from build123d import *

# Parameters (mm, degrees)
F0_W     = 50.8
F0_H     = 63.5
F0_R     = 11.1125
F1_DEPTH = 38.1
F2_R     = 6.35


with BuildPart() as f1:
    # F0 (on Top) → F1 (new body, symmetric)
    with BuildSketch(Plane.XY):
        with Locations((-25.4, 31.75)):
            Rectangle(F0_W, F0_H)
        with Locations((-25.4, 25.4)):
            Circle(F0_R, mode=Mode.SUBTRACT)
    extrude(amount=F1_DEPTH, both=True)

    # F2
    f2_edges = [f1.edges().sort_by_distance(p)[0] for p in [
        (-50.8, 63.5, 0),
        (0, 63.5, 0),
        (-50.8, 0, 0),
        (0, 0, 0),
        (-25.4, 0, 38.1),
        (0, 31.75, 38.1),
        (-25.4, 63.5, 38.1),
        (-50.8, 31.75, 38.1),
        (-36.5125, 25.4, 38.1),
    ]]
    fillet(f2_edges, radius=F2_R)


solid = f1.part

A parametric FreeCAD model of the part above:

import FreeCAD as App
import Part
import Sketcher

V = App.Vector
Q = App.Units.Quantity


def edges_at(feature, points):
    """Names of the edges that pass closest to the given points."""
    edges = feature.Shape.Edges
    near = lambda p: min(range(len(edges)), key=lambda i: edges[i].distToShape(Part.Vertex(*p))[0])
    return sorted({f"Edge{near(p) + 1}" for p in points})

doc = App.newDocument("Part")
body = doc.addObject("PartDesign::Body", "Body")

sketch1 = body.newObject("Sketcher::SketchObject", "Sketch")
sketch1.AttachmentSupport = (doc.getObject("XY_Plane"), [""])
sketch1.MapMode = "FlatFace"
sketch1.addGeometry(Part.LineSegment(V(-51, 64, 0), V(-51, 0, 0)), False)
sketch1.addGeometry(Part.LineSegment(V(-51, 0, 0), V(0, 0, 0)), False)
sketch1.addGeometry(Part.LineSegment(V(0, 0, 0), V(0, 64, 0)), False)
sketch1.addGeometry(Part.LineSegment(V(0, 64, 0), V(-51, 64, 0)), False)
sketch1.addGeometry(Part.Circle(V(-25, 25, 0), V(0, 0, 1), 11), False)
sketch1.addConstraint(Sketcher.Constraint("Coincident", 0, 2, 1, 1))
sketch1.addConstraint(Sketcher.Constraint("Coincident", 1, 2, 2, 1))
sketch1.addConstraint(Sketcher.Constraint("Coincident", 2, 2, 3, 1))
sketch1.addConstraint(Sketcher.Constraint("Coincident", 3, 2, 0, 1))
sketch1.addConstraint(Sketcher.Constraint("Vertical", 0))
sketch1.addConstraint(Sketcher.Constraint("Horizontal", 1))
sketch1.addConstraint(Sketcher.Constraint("Vertical", 2))
sketch1.addConstraint(Sketcher.Constraint("Horizontal", 3))
sketch1.addConstraint(Sketcher.Constraint("Coincident", 1, 2, -1, 1))
sketch1.addConstraint(Sketcher.Constraint("DistanceX", 1, 1, 1, 2, Q("2 in")))
sketch1.addConstraint(Sketcher.Constraint("Diameter", 4, Q("0.875 in")))
sketch1.addConstraint(Sketcher.Constraint("DistanceY", 0, 2, 0, 1, Q("2.5 in")))
sketch1.addConstraint(Sketcher.Constraint("DistanceX", 4, 3, -1, 1, Q("1 in")))
sketch1.addConstraint(Sketcher.Constraint("DistanceY", -1, 1, 4, 3, Q("1 in")))
pad1 = body.newObject("PartDesign::Pad", "Pad")
pad1.Profile = sketch1
pad1.Length = Q("3 in")
pad1.Midplane = True
doc.recompute()

fillet = body.newObject("PartDesign::Fillet", "Fillet")
fillet.Base = (pad1, edges_at(pad1, [
    (-50.8, 63.5, 0),
    (0, 63.5, 0),
    (-50.8, 0, 0),
    (0, 0, 0),
    (-25.4, 0, 38.1),
    (0, 31.75, 38.1),
    (-25.4, 63.5, 38.1),
    (-50.8, 31.75, 38.1),
    (-36.513, 25.4, 38.1),
]))
fillet.Radius = Q("0.25 in")

doc.recompute()
